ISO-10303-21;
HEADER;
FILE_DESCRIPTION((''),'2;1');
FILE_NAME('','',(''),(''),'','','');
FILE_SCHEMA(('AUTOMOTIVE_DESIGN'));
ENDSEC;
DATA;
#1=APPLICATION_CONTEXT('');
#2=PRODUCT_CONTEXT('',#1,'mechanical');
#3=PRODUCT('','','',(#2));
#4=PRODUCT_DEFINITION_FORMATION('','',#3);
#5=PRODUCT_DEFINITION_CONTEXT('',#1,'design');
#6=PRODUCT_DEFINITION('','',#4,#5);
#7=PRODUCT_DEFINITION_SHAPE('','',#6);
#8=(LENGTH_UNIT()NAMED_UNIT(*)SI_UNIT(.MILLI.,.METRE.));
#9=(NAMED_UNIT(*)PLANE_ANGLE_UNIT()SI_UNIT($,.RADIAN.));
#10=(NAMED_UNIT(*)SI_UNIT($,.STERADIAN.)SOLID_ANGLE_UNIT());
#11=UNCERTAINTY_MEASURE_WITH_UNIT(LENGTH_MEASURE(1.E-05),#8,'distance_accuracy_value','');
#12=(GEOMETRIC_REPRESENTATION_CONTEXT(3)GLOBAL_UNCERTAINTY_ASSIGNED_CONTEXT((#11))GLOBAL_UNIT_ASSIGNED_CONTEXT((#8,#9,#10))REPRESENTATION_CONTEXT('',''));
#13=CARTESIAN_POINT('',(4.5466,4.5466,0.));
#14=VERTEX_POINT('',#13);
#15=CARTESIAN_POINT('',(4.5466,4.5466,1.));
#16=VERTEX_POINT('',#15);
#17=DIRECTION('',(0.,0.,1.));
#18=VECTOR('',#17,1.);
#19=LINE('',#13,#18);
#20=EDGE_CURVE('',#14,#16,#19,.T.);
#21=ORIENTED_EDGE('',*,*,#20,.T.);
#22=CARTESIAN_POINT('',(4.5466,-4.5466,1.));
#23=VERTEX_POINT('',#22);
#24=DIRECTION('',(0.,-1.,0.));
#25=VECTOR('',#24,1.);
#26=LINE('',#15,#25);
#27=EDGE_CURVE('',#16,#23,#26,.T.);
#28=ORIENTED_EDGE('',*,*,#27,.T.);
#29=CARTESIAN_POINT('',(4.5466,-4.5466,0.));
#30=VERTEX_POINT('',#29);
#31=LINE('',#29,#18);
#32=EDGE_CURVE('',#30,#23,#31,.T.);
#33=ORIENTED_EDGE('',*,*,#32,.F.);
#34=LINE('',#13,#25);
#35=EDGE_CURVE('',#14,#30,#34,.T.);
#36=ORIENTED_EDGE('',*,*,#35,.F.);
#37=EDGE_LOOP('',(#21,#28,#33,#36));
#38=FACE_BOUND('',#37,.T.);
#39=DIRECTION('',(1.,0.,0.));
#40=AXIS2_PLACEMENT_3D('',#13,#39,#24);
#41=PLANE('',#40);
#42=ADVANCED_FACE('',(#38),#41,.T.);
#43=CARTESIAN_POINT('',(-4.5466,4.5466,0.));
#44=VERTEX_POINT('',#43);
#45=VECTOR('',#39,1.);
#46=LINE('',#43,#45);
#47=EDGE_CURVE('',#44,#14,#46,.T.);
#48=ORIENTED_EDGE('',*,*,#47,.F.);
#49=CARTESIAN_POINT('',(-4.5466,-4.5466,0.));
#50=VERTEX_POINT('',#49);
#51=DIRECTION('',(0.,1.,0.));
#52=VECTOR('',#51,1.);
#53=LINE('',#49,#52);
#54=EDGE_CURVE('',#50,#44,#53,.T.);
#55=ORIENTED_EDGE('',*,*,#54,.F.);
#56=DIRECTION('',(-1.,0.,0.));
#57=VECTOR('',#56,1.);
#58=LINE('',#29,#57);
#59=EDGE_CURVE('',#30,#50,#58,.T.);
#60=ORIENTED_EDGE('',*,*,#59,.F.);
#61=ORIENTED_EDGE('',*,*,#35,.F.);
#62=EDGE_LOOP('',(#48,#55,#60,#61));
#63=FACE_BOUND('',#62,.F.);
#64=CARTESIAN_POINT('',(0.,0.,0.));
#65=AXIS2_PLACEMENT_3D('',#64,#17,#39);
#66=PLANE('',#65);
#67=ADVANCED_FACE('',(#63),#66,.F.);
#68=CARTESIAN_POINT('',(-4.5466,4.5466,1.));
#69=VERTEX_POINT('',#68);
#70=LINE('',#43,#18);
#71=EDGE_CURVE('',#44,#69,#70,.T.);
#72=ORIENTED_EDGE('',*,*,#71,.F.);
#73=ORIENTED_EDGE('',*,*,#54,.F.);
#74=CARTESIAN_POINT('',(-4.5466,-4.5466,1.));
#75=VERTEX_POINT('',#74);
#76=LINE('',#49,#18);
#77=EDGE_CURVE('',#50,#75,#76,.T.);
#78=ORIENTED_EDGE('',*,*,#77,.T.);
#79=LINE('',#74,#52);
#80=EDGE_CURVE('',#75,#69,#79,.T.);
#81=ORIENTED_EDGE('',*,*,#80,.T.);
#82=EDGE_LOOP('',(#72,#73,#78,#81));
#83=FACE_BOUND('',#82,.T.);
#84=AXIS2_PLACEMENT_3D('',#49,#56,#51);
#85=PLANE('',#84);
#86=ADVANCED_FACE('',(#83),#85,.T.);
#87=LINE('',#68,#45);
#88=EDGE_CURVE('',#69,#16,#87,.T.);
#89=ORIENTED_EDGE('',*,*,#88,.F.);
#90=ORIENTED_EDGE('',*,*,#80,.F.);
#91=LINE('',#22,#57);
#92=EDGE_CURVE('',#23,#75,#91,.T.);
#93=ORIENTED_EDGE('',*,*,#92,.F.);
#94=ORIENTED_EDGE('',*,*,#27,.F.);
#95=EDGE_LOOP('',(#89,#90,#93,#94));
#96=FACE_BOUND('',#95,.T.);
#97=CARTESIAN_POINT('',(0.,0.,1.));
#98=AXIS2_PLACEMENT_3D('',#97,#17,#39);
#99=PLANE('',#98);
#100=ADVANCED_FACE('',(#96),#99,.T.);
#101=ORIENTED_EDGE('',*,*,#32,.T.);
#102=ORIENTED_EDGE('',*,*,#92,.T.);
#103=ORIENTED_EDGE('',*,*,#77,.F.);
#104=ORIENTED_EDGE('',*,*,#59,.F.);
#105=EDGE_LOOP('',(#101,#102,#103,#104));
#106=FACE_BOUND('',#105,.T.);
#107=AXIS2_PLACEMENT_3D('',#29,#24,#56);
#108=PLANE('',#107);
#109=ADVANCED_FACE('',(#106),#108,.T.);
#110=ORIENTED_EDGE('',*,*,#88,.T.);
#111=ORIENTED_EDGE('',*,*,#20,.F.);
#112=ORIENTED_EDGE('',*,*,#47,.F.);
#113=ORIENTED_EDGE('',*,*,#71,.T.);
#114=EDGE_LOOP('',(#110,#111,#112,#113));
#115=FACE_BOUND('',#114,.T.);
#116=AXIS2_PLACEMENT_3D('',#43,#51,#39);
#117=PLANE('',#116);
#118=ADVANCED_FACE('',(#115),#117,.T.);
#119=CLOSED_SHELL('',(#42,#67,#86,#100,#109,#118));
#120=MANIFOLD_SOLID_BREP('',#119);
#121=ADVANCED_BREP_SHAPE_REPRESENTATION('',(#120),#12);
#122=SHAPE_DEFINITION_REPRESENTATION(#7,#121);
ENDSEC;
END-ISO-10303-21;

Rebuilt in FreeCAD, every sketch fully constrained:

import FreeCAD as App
import Part
import Sketcher

V = App.Vector


def add_polygon(sketch, points):
    """Adds a closed chain of lines whose ends are joined by coincident constraints."""
    first, n = sketch.GeometryCount, len(points)
    for a, b in zip(points, points[1:] + points[:1]):
        sketch.addGeometry(Part.LineSegment(App.Vector(*a, 0), App.Vector(*b, 0)), False)
    for i in range(n):
        sketch.addConstraint(Sketcher.Constraint("Coincident", first + i, 2, first + (i + 1) % n, 1))

doc = App.newDocument("Part")
body = doc.addObject("PartDesign::Body", "Body")

# Sketch on XY plane
sketch1 = body.newObject("Sketcher::SketchObject", "Sketch")
sketch1.AttachmentSupport = (doc.getObject("XY_Plane"), [""])
sketch1.MapMode = "FlatFace"
add_polygon(sketch1, [(4.5466, 4.5466), (-4.5466, 4.5466), (-4.5466, -4.5466), (4.5466, -4.5466)])  # lines 0-3
sketch1.addConstraint([
    Sketcher.Constraint("Horizontal", 0),
    Sketcher.Constraint("Vertical", 1),
    Sketcher.Constraint("Horizontal", 2),
    Sketcher.Constraint("Vertical", 3),
    Sketcher.Constraint("Symmetric", 0, 2, 2, 2, -1, 1),
    Sketcher.Constraint("Equal", 2, 1),
    Sketcher.Constraint("DistanceX", 0, 2, 0, 1, 9.0932),
])
pad1 = body.newObject("PartDesign::Pad", "Pad")
pad1.Profile = sketch1
pad1.Length = 1

doc.recompute()
